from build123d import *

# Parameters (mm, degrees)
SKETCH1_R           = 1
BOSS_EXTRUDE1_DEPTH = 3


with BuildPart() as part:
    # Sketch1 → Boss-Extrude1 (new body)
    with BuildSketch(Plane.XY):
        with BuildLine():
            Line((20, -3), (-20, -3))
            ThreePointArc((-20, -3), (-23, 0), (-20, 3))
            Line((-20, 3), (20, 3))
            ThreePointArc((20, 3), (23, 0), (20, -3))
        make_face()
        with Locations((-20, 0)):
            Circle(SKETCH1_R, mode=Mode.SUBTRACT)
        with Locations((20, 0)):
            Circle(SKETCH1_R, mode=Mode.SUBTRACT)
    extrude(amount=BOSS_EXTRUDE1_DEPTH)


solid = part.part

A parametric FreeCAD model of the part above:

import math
import FreeCAD as App
import Part
import Sketcher
from FreeCAD import Vector

doc = App.newDocument("Part")
params = doc.addObject("Spreadsheet::Sheet", "Params")
for row, (alias, value) in enumerate([
    ("sketch1_diameter", "2 mm"),
    ("sketch1_radius", "3 mm"),
    ("sketch1_width", "40 mm"),
    ("pad1_length", "3 mm"),
], start=1):
    params.set(f"A{row}", alias)
    params.set(f"B{row}", "=" + value)
    params.setAlias(f"B{row}", alias)

body = doc.addObject("PartDesign::Body", "Body")

# Sketch on XY plane
sketch1 = body.newObject("Sketcher::SketchObject", "Sketch")
sketch1.AttachmentSupport = (doc.getObject("XY_Plane"), [""])
sketch1.MapMode = "FlatFace"
sketch1.addGeometry(Part.LineSegment(Vector(-20, -3, 0), Vector(20, -3, 0)), False)
sketch1.addGeometry(Part.ArcOfCircle(Part.Circle(Vector(20, 0, 0), Vector(0, 0, 1), 3), math.radians(-90), math.radians(90)), False)
sketch1.addGeometry(Part.LineSegment(Vector(20, 3, 0), Vector(-20, 3, 0)), False)
sketch1.addGeometry(Part.ArcOfCircle(Part.Circle(Vector(-20, 0, 0), Vector(0, 0, 1), 3), math.radians(90), math.radians(270)), False)
sketch1.addGeometry(Part.Circle(Vector(20, 0, 0), Vector(0, 0, 1), 1), False)
sketch1.addGeometry(Part.Circle(Vector(-20, 0, 0), Vector(0, 0, 1), 1), False)
sketch1.addConstraint(Sketcher.Constraint("Tangent", 0, 2, 1, 1))
sketch1.addConstraint(Sketcher.Constraint("Tangent", 1, 2, 2, 1))
sketch1.addConstraint(Sketcher.Constraint("Tangent", 2, 2, 3, 1))
sketch1.addConstraint(Sketcher.Constraint("Tangent", 3, 2, 0, 1))
sketch1.addConstraint(Sketcher.Constraint("Horizontal", 0))
sketch1.addConstraint(Sketcher.Constraint("Horizontal", 2))
sketch1.addConstraint(Sketcher.Constraint("Coincident", 4, 3, 1, 3))
sketch1.addConstraint(Sketcher.Constraint("Coincident", 5, 3, 3, 3))
sketch1.addConstraint(Sketcher.Constraint("Equal", 4, 5))
sketch1.addConstraint(Sketcher.Constraint("Symmetric", 1, 3, 3, 3, -1, 1))
sketch1.addConstraint(Sketcher.Constraint("Diameter", 4, 2.0))
sketch1.addConstraint(Sketcher.Constraint("Radius", 1, 3.0))
sketch1.addConstraint(Sketcher.Constraint("DistanceX", 0, 1, 0, 2, 40.0))
sketch1.setExpression("Constraints[10]", "Params.sketch1_diameter")
sketch1.setExpression("Constraints[11]", "Params.sketch1_radius")
sketch1.setExpression("Constraints[12]", "Params.sketch1_width")
pad1 = body.newObject("PartDesign::Pad", "Pad")
pad1.Profile = sketch1
pad1.setExpression("Length", "Params.pad1_length")

doc.recompute()
